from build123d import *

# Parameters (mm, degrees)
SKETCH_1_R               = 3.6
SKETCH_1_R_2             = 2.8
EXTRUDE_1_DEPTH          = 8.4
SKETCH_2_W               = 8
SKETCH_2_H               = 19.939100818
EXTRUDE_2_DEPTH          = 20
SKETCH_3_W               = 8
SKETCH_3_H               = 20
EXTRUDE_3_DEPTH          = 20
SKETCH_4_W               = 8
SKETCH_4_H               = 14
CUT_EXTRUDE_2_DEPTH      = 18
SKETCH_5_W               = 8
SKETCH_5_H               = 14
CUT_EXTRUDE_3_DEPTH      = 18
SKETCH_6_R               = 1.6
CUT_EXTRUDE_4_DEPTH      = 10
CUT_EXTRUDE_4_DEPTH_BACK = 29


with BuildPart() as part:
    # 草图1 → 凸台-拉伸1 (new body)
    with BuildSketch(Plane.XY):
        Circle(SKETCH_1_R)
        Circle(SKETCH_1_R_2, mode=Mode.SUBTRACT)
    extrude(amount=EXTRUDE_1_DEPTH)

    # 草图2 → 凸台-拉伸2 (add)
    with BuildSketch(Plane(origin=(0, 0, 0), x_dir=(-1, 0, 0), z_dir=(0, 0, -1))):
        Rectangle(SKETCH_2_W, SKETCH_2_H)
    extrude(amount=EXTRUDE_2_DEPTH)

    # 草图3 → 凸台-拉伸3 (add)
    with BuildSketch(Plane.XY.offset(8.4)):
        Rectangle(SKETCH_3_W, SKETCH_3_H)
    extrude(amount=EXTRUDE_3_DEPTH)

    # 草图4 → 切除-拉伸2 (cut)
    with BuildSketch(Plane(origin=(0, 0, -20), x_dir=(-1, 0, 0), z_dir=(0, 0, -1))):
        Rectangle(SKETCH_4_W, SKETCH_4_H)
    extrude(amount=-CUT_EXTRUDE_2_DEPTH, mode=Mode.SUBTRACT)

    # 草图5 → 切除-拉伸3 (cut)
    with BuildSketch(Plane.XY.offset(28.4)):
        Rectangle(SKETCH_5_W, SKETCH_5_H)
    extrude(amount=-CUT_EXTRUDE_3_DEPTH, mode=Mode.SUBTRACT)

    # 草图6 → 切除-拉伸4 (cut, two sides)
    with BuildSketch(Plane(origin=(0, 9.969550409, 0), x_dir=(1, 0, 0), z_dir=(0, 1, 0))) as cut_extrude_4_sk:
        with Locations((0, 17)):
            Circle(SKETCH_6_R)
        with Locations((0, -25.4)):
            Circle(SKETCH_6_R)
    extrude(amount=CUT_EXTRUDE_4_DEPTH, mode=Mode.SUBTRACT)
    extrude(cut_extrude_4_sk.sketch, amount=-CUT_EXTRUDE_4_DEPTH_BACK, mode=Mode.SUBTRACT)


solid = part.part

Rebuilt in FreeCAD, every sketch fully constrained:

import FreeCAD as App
import Part
import Sketcher
Q = App.Units.Quantity


def add_polygon(sketch, points):
    """Adds a closed chain of lines whose ends are joined by coincident constraints."""
    first, n = sketch.GeometryCount, len(points)
    for a, b in zip(points, points[1:] + points[:1]):
        sketch.addGeometry(Part.LineSegment(App.Vector(*a, 0), App.Vector(*b, 0)), False)
    for i in range(n):
        sketch.addConstraint(Sketcher.Constraint("Coincident", first + i, 2, first + (i + 1) % n, 1))

doc = App.newDocument("Part")
params = doc.addObject("Spreadsheet::Sheet", "Params")
for row, (alias, value) in enumerate([
    ("sketch1_diameter", "7.2 mm"),
    ("sketch1_diameter2", "5.6 mm"),
    ("pad1_length", "8.4 mm"),
    ("sketch2_width", "8 mm"),
    ("pad2_length", "20 mm"),
    ("sketch3_width", "8 mm"),
    ("sketch3_height", "20 mm"),
    ("pad3_length", "20 mm"),
    ("sketch4_width", "8 mm"),
    ("sketch4_height", "14 mm"),
    ("pocket1_length", "18 mm"),
    ("sketch5_width", "8 mm"),
    ("sketch5_height", "14 mm"),
    ("pocket2_length", "18 mm"),
    ("sketch6_diameter", "3.2 mm"),
], start=1):
    params.set(f"A{row}", alias)
    params.set(f"B{row}", "=" + value)
    params.setAlias(f"B{row}", alias)

body = doc.addObject("PartDesign::Body", "Body")

sketch1 = body.newObject("Sketcher::SketchObject", "Sketch")
sketch1.AttachmentSupport = (doc.getObject("XY_Plane"), [""])
sketch1.MapMode = "FlatFace"
sketch1.addGeometry(Part.Circle(App.Vector(0, 0, 0), App.Vector(0, 0, 1), 3.6), False)
sketch1.addGeometry(Part.Circle(App.Vector(0, 0, 0), App.Vector(0, 0, 1), 2.8), False)
sketch1.addConstraint(Sketcher.Constraint("Coincident", 0, 3, -1, 1))
sketch1.addConstraint(Sketcher.Constraint("Coincident", 1, 3, -1, 1))
sketch1.addConstraint(Sketcher.Constraint("Diameter", 0, Q("7.2 mm")))
sketch1.addConstraint(Sketcher.Constraint("Diameter", 1, Q("5.6 mm")))
sketch1.setExpression("Constraints[2]", "Params.sketch1_diameter")
sketch1.setExpression("Constraints[3]", "Params.sketch1_diameter2")
pad1 = body.newObject("PartDesign::Pad", "Pad")
pad1.Profile = sketch1
pad1.setExpression("Length", "Params.pad1_length")

sketch2 = body.newObject("Sketcher::SketchObject", "Sketch001")
sketch2.AttachmentSupport = (doc.getObject("XY_Plane"), [""])
sketch2.MapMode = "FlatFace"
add_polygon(sketch2, [(4, 9.96955), (4, -9.96955), (-4, -9.96955), (-4, 9.96955)])
sketch2.addConstraint(Sketcher.Constraint("Vertical", 0))
sketch2.addConstraint(Sketcher.Constraint("Horizontal", 1))
sketch2.addConstraint(Sketcher.Constraint("Vertical", 2))
sketch2.addConstraint(Sketcher.Constraint("Horizontal", 3))
sketch2.addConstraint(Sketcher.Constraint("Symmetric", 0, 2, 2, 2, -1, 1))
sketch2.addConstraint(Sketcher.Constraint("DistanceX", 1, 2, 1, 1, Q("8 mm")))
sketch2.addConstraint(Sketcher.Constraint("DistanceY", 0, 2, 0, 1, Q("19.939101 mm")))
sketch2.setExpression("Constraints[9]", "Params.sketch2_width")
pad2 = body.newObject("PartDesign::Pad", "Pad001")
pad2.Profile = sketch2
pad2.setExpression("Length", "Params.pad2_length")
pad2.Reversed = True

sketch3 = body.newObject("Sketcher::SketchObject", "Sketch002")
sketch3.AttachmentSupport = (doc.getObject("XY_Plane"), [""])
sketch3.MapMode = "FlatFace"
sketch3.AttachmentOffset = App.Placement(App.Vector(0, 0, 8.4), App.Rotation())
add_polygon(sketch3, [(-4, 10), (-4, -10), (4, -10), (4, 10)])
sketch3.addConstraint(Sketcher.Constraint("Vertical", 0))
sketch3.addConstraint(Sketcher.Constraint("Horizontal", 1))
sketch3.addConstraint(Sketcher.Constraint("Vertical", 2))
sketch3.addConstraint(Sketcher.Constraint("Horizontal", 3))
sketch3.addConstraint(Sketcher.Constraint("Symmetric", 0, 2, 2, 2, -1, 1))
sketch3.addConstraint(Sketcher.Constraint("DistanceX", 1, 1, 1, 2, Q("8 mm")))
sketch3.addConstraint(Sketcher.Constraint("DistanceY", 0, 2, 0, 1, Q("20 mm")))
sketch3.setExpression("Constraints[9]", "Params.sketch3_width")
sketch3.setExpression("Constraints[10]", "Params.sketch3_height")
pad3 = body.newObject("PartDesign::Pad", "Pad002")
pad3.Profile = sketch3
pad3.setExpression("Length", "Params.pad3_length")

sketch4 = body.newObject("Sketcher::SketchObject", "Sketch003")
sketch4.AttachmentSupport = (doc.getObject("XY_Plane"), [""])
sketch4.MapMode = "FlatFace"
sketch4.AttachmentOffset = App.Placement(App.Vector(0, 0, -20), App.Rotation())
add_polygon(sketch4, [(4, 7), (4, -7), (-4, -7), (-4, 7)])
sketch4.addConstraint(Sketcher.Constraint("Vertical", 0))
sketch4.addConstraint(Sketcher.Constraint("Horizontal", 1))
sketch4.addConstraint(Sketcher.Constraint("Vertical", 2))
sketch4.addConstraint(Sketcher.Constraint("Horizontal", 3))
sketch4.addConstraint(Sketcher.Constraint("Symmetric", 0, 2, 2, 2, -1, 1))
sketch4.addConstraint(Sketcher.Constraint("DistanceX", 1, 2, 1, 1, Q("8 mm")))
sketch4.addConstraint(Sketcher.Constraint("DistanceY", 0, 2, 0, 1, Q("14 mm")))
sketch4.setExpression("Constraints[9]", "Params.sketch4_width")
sketch4.setExpression("Constraints[10]", "Params.sketch4_height")
pocket1 = body.newObject("PartDesign::Pocket", "Pocket")
pocket1.Profile = sketch4
pocket1.setExpression("Length", "Params.pocket1_length")
pocket1.Reversed = True

sketch5 = body.newObject("Sketcher::SketchObject", "Sketch004")
sketch5.AttachmentSupport = (doc.getObject("XY_Plane"), [""])
sketch5.MapMode = "FlatFace"
sketch5.AttachmentOffset = App.Placement(App.Vector(0, 0, 28.4), App.Rotation())
add_polygon(sketch5, [(-4, 7), (-4, -7), (4, -7), (4, 7)])
sketch5.addConstraint(Sketcher.Constraint("Vertical", 0))
sketch5.addConstraint(Sketcher.Constraint("Horizontal", 1))
sketch5.addConstraint(Sketcher.Constraint("Vertical", 2))
sketch5.addConstraint(Sketcher.Constraint("Horizontal", 3))
sketch5.addConstraint(Sketcher.Constraint("Symmetric", 0, 2, 2, 2, -1, 1))
sketch5.addConstraint(Sketcher.Constraint("DistanceX", 1, 1, 1, 2, Q("8 mm")))
sketch5.addConstraint(Sketcher.Constraint("DistanceY", 0, 2, 0, 1, Q("14 mm")))
sketch5.setExpression("Constraints[9]", "Params.sketch5_width")
sketch5.setExpression("Constraints[10]", "Params.sketch5_height")
pocket2 = body.newObject("PartDesign::Pocket", "Pocket001")
pocket2.Profile = sketch5
pocket2.setExpression("Length", "Params.pocket2_length")

sketch6 = body.newObject("Sketcher::SketchObject", "Sketch005")
sketch6.AttachmentSupport = (doc.getObject("XZ_Plane"), [""])
sketch6.MapMode = "FlatFace"
sketch6.AttachmentOffset = App.Placement(App.Vector(0, 0, -9.96955), App.Rotation())
sketch6.addGeometry(Part.Circle(App.Vector(0, -17, 0), App.Vector(0, 0, 1), 1.6), False)
sketch6.addGeometry(Part.Circle(App.Vector(0, 25.4, 0), App.Vector(0, 0, 1), 1.6), False)
sketch6.addConstraint(Sketcher.Constraint("Equal", 0, 1))
sketch6.addConstraint(Sketcher.Constraint("PointOnObject", 0, 3, -2))
sketch6.addConstraint(Sketcher.Constraint("PointOnObject", 1, 3, -2))
sketch6.addConstraint(Sketcher.Constraint("Diameter", 0, Q("3.2 mm")))
sketch6.addConstraint(Sketcher.Constraint("DistanceY", 0, 3, -1, 1, Q("17 mm")))
sketch6.addConstraint(Sketcher.Constraint("DistanceY", -1, 1, 1, 3, Q("25.4 mm")))
sketch6.setExpression("Constraints[3]", "Params.sketch6_diameter")
pocket3 = body.newObject("PartDesign::Pocket", "Pocket002")
pocket3.Profile = sketch6
pocket3.Type = "ThroughAll"
pocket3.Midplane = True

doc.recompute()
